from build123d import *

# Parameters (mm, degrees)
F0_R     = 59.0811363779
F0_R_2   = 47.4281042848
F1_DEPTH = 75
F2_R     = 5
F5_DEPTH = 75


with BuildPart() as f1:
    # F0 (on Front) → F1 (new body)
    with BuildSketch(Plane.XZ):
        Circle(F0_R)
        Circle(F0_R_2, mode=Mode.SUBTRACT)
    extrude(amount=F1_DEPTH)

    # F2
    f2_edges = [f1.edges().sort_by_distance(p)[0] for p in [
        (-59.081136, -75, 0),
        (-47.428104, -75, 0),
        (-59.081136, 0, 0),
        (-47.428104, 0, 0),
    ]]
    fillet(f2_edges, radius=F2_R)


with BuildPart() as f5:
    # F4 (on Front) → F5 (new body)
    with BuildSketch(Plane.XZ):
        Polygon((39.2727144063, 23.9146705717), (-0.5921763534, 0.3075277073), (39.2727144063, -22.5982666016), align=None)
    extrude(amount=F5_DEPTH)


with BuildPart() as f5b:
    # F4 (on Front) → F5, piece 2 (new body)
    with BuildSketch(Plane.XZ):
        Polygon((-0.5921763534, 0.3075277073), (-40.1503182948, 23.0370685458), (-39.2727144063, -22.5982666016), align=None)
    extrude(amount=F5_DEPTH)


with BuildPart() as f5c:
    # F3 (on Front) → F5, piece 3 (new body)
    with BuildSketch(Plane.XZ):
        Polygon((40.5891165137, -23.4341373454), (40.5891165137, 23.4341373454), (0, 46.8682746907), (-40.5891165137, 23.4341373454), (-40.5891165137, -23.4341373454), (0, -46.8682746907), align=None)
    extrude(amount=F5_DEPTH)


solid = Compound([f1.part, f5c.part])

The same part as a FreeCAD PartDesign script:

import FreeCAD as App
import Part
import Sketcher
Q = App.Units.Quantity


def edges_at(feature, points):
    """Names of the edges that pass closest to the given points."""
    edges = feature.Shape.Edges
    near = lambda p: min(range(len(edges)), key=lambda i: edges[i].distToShape(Part.Vertex(*p))[0])
    return sorted({f"Edge{near(p) + 1}" for p in points})

doc = App.newDocument("Part")
body = doc.addObject("PartDesign::Body", "Body")

sketch1 = body.newObject("Sketcher::SketchObject", "Sketch")
sketch1.AttachmentSupport = (doc.getObject("XZ_Plane"), [""])
sketch1.MapMode = "FlatFace"
sketch1.addGeometry(Part.Circle(App.Vector(0, 0, 0), App.Vector(0, 0, 1), 59.081136), False)
sketch1.addGeometry(Part.Circle(App.Vector(0, 0, 0), App.Vector(0, 0, 1), 47.428104), False)
sketch1.addConstraint(Sketcher.Constraint("Coincident", 0, 3, -1, 1))
sketch1.addConstraint(Sketcher.Constraint("Coincident", 1, 3, -1, 1))
sketch1.addConstraint(Sketcher.Constraint("Diameter", 1, 94.856209))
sketch1.addConstraint(Sketcher.Constraint("Diameter", 0, 118.162273))
pad1 = body.newObject("PartDesign::Pad", "Pad")
pad1.Profile = sketch1
pad1.Length = 75
doc.recompute()

fillet = body.newObject("PartDesign::Fillet", "Fillet")
fillet.Base = (pad1, edges_at(pad1, [
    (-59.081, -75, 0),
    (-47.428, -75, 0),
    (-59.081, 0, 0),
    (-47.428, 0, 0),
]))
fillet.Radius = 5
body2 = doc.addObject("PartDesign::Body", "Body001")

sketch2 = body2.newObject("Sketcher::SketchObject", "Sketch001")
sketch2.AttachmentSupport = (doc.getObject("XZ_Plane001"), [""])
sketch2.MapMode = "FlatFace"
sketch2.addGeometry(Part.LineSegment(App.Vector(39.272714, 23.914671, 0), App.Vector(-0.592176, 0.307528, 0)), False)
sketch2.addGeometry(Part.LineSegment(App.Vector(-0.592176, 0.307528, 0), App.Vector(39.272714, -22.598267, 0)), False)
sketch2.addGeometry(Part.LineSegment(App.Vector(39.272714, -22.598267, 0), App.Vector(39.272714, 23.914671, 0)), False)
sketch2.addConstraint(Sketcher.Constraint("Coincident", 0, 2, 1, 1))
sketch2.addConstraint(Sketcher.Constraint("Coincident", 1, 2, 2, 1))
sketch2.addConstraint(Sketcher.Constraint("Coincident", 2, 2, 0, 1))
sketch2.addConstraint(Sketcher.Constraint("Vertical", 2))
sketch2.addConstraint(Sketcher.Constraint("Distance", 0, 46.330408))
sketch2.addConstraint(Sketcher.Constraint("DistanceY", 2, 1, 2, 2, 46.512937))
sketch2.addConstraint(Sketcher.Constraint("DistanceY", -1, 1, 2, 2, 23.914671))
sketch2.addConstraint(Sketcher.Constraint("DistanceX", 0, 2, 1, 2, 39.864891))
sketch2.addConstraint(Sketcher.Constraint("DistanceX", 0, 2, -1, 1, 0.592176))
pad2 = body2.newObject("PartDesign::Pad", "Pad001")
pad2.Profile = sketch2
pad2.Length = 75
body3 = doc.addObject("PartDesign::Body", "Body002")

sketch3 = body3.newObject("Sketcher::SketchObject", "Sketch002")
sketch3.AttachmentSupport = (doc.getObject("XZ_Plane002"), [""])
sketch3.MapMode = "FlatFace"
sketch3.addGeometry(Part.LineSegment(App.Vector(-0.592176, 0.307528, 0), App.Vector(-40.150318, 23.037069, 0)), False)
sketch3.addGeometry(Part.LineSegment(App.Vector(-40.150318, 23.037069, 0), App.Vector(-39.272714, -22.598267, 0)), False)
sketch3.addGeometry(Part.LineSegment(App.Vector(-39.272714, -22.598267, 0), App.Vector(-0.592176, 0.307528, 0)), False)
sketch3.addConstraint(Sketcher.Constraint("Coincident", 0, 2, 1, 1))
sketch3.addConstraint(Sketcher.Constraint("Coincident", 1, 2, 2, 1))
sketch3.addConstraint(Sketcher.Constraint("Coincident", 2, 2, 0, 1))
sketch3.addConstraint(Sketcher.Constraint("Distance", 2, 44.95397))
sketch3.addConstraint(Sketcher.Constraint("DistanceX", 0, 2, -1, 1, 40.150318))
sketch3.addConstraint(Sketcher.Constraint("DistanceY", -1, 1, 0, 2, 23.037069))
sketch3.addConstraint(Sketcher.Constraint("DistanceX", 1, 2, 2, 2, 38.680538))
sketch3.addConstraint(Sketcher.Constraint("DistanceX", 0, 2, 2, 2, 39.558142))
sketch3.addConstraint(Sketcher.Constraint("DistanceY", 2, 2, 0, 2, 22.729541))
pad3 = body3.newObject("PartDesign::Pad", "Pad002")
pad3.Profile = sketch3
pad3.Length = 75
body4 = doc.addObject("PartDesign::Body", "Body003")

sketch4 = body4.newObject("Sketcher::SketchObject", "Sketch003")
sketch4.AttachmentSupport = (doc.getObject("XZ_Plane003"), [""])
sketch4.MapMode = "FlatFace"
sketch4.addGeometry(Part.LineSegment(App.Vector(40.589117, -23.434137, 0), App.Vector(40.589117, 23.434137, 0)), False)
sketch4.addGeometry(Part.LineSegment(App.Vector(40.589117, 23.434137, 0), App.Vector(0, 46.868275, 0)), False)
sketch4.addGeometry(Part.LineSegment(App.Vector(0, 46.868275, 0), App.Vector(-40.589117, 23.434137, 0)), False)
sketch4.addGeometry(Part.LineSegment(App.Vector(-40.589117, 23.434137, 0), App.Vector(-40.589117, -23.434137, 0)), False)
sketch4.addGeometry(Part.LineSegment(App.Vector(-40.589117, -23.434137, 0), App.Vector(0, -46.868275, 0)), False)
sketch4.addGeometry(Part.LineSegment(App.Vector(0, -46.868275, 0), App.Vector(40.589117, -23.434137, 0)), False)
sketch4.addConstraint(Sketcher.Constraint("Coincident", 0, 2, 1, 1))
sketch4.addConstraint(Sketcher.Constraint("Coincident", 1, 2, 2, 1))
sketch4.addConstraint(Sketcher.Constraint("Coincident", 2, 2, 3, 1))
sketch4.addConstraint(Sketcher.Constraint("Coincident", 3, 2, 4, 1))
sketch4.addConstraint(Sketcher.Constraint("Coincident", 4, 2, 5, 1))
sketch4.addConstraint(Sketcher.Constraint("Coincident", 5, 2, 0, 1))
sketch4.addConstraint(Sketcher.Constraint("Vertical", 0))
sketch4.addConstraint(Sketcher.Constraint("Vertical", 3))
sketch4.addConstraint(Sketcher.Constraint("Symmetric", 0, 2, 3, 2, -1, 1))
sketch4.addConstraint(Sketcher.Constraint("Symmetric", 1, 2, 4, 2, -1, 1))
sketch4.addConstraint(Sketcher.Constraint("PointOnObject", 1, 2, -2))
sketch4.addConstraint(Sketcher.Constraint("Parallel", 2, 5))
sketch4.addConstraint(Sketcher.Constraint("Horizontal", 0, 2, 2, 2))
sketch4.addConstraint(Sketcher.Constraint("Angle", 1, Q("150 deg")))
sketch4.addConstraint(Sketcher.Constraint("DistanceY", 0, 1, 0, 2, 46.868275))
sketch4.addConstraint(Sketcher.Constraint("DistanceY", 4, 2, 1, 2, 93.736549))
pad4 = body4.newObject("PartDesign::Pad", "Pad003")
pad4.Profile = sketch4
pad4.Length = 75
body2.Visibility = False
body3.Visibility = False

doc.recompute()
